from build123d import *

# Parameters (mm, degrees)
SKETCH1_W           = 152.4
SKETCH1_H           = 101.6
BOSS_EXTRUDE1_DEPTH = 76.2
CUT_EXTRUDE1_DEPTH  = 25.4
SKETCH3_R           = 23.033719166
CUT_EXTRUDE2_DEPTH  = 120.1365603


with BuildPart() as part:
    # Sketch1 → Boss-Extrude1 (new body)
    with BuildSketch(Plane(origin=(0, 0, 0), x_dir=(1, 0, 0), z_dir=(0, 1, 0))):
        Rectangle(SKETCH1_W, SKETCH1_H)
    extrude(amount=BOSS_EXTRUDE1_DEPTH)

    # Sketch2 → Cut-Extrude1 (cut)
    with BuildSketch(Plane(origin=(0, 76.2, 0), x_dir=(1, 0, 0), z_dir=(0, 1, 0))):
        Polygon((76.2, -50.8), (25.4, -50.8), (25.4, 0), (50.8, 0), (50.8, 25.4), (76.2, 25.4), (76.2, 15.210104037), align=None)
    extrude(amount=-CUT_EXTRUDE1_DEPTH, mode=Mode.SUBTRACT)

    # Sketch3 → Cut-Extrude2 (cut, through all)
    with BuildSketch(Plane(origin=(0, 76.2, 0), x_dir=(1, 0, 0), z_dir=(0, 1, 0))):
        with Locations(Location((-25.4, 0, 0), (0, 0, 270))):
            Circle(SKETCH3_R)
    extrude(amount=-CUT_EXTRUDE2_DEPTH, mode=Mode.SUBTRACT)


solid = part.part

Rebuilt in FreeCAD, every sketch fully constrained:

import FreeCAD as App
import Part
import Sketcher
Q = App.Units.Quantity

doc = App.newDocument("Part")
body = doc.addObject("PartDesign::Body", "Body")

# Sketch on XZ plane
sketch1 = body.newObject("Sketcher::SketchObject", "Sketch")
sketch1.AttachmentSupport = (doc.getObject("XZ_Plane"), [""])
sketch1.MapMode = "FlatFace"
sketch1.addGeometry([
    Part.LineSegment(App.Vector(-76, -51, 0), App.Vector(-76, 51, 0)),
    Part.LineSegment(App.Vector(-76, 51, 0), App.Vector(76, 51, 0)),
    Part.LineSegment(App.Vector(76, 51, 0), App.Vector(76, -51, 0)),
    Part.LineSegment(App.Vector(76, -51, 0), App.Vector(-76, -51, 0)),
], False)
sketch1.addConstraint([
    Sketcher.Constraint("Coincident", 0, 2, 1, 1),
    Sketcher.Constraint("Coincident", 1, 2, 2, 1),
    Sketcher.Constraint("Coincident", 2, 2, 3, 1),
    Sketcher.Constraint("Coincident", 3, 2, 0, 1),
    Sketcher.Constraint("Vertical", 0),
    Sketcher.Constraint("Horizontal", 1),
    Sketcher.Constraint("Vertical", 2),
    Sketcher.Constraint("Horizontal", 3),
    Sketcher.Constraint("Symmetric", 0, 2, 2, 2, -1, 1),
    Sketcher.Constraint("DistanceX", 1, 1, 1, 2, Q("6 in")),
    Sketcher.Constraint("DistanceY", 0, 1, 0, 2, Q("4 in")),
])
pad1 = body.newObject("PartDesign::Pad", "Pad")
pad1.Profile = sketch1
pad1.Length = Q("3 in")
pad1.Reversed = True

# Sketch on XZ plane
sketch2 = body.newObject("Sketcher::SketchObject", "Sketch001")
sketch2.AttachmentSupport = (doc.getObject("XZ_Plane"), [""])
sketch2.MapMode = "FlatFace"
sketch2.AttachmentOffset = App.Placement(App.Vector(0, 0, -3 * 25.4), App.Rotation())
sketch2.addGeometry([
    Part.LineSegment(App.Vector(25, 51, 0), App.Vector(76, 51, 0)),  # 0
    Part.LineSegment(App.Vector(76, 51, 0), App.Vector(76, -25, 0)),  # 1
    Part.LineSegment(App.Vector(76, -25, 0), App.Vector(51, -25, 0)),  # 2
    Part.LineSegment(App.Vector(51, -25, 0), App.Vector(51, 0, 0)),  # 3
    Part.LineSegment(App.Vector(51, 0, 0), App.Vector(25, 0, 0)),  # 4
    Part.LineSegment(App.Vector(25, 0, 0), App.Vector(25, 51, 0)),  # 5
], False)
sketch2.addConstraint([
    Sketcher.Constraint("Coincident", 0, 2, 1, 1),
    Sketcher.Constraint("Coincident", 1, 2, 2, 1),
    Sketcher.Constraint("Coincident", 2, 2, 3, 1),
    Sketcher.Constraint("Coincident", 3, 2, 4, 1),
    Sketcher.Constraint("Coincident", 4, 2, 5, 1),
    Sketcher.Constraint("Coincident", 5, 2, 0, 1),
    Sketcher.Constraint("Horizontal", 0),
    Sketcher.Constraint("Vertical", 1),
    Sketcher.Constraint("Horizontal", 2),
    Sketcher.Constraint("Vertical", 3),
    Sketcher.Constraint("Horizontal", 4),
    Sketcher.Constraint("Vertical", 5),
    Sketcher.Constraint("PointOnObject", 3, 2, -1),
    Sketcher.Constraint("Equal", 2, 4),
    Sketcher.Constraint("Equal", 4, 3),
    Sketcher.Constraint("Equal", 0, 5),
    Sketcher.Constraint("DistanceX", 0, 1, 0, 2, Q("2 in")),
    Sketcher.Constraint("DistanceX", -1, 1, 0, 2, Q("3 in")),
])
pocket1 = body.newObject("PartDesign::Pocket", "Pocket")
pocket1.Profile = sketch2
pocket1.Length = Q("1 in")
pocket1.Reversed = True

# Sketch on XZ plane
sketch3 = body.newObject("Sketcher::SketchObject", "Sketch002")
sketch3.AttachmentSupport = (doc.getObject("XZ_Plane"), [""])
sketch3.MapMode = "FlatFace"
sketch3.AttachmentOffset = App.Placement(App.Vector(0, 0, -3 * 25.4), App.Rotation())
sketch3.addGeometry(Part.Circle(App.Vector(-25, 0, 0), App.Vector(0, 0, 1), 23), False)
sketch3.addConstraint([
    Sketcher.Constraint("PointOnObject", 0, 3, -1),
    Sketcher.Constraint("DistanceX", 0, 3, -1, 1, Q("1 in")),
    Sketcher.Constraint("Diameter", 0, 46.067438),
])
pocket2 = body.newObject("PartDesign::Pocket", "Pocket001")
pocket2.Profile = sketch3
pocket2.Type = "ThroughAll"
pocket2.Reversed = True

doc.recompute()
